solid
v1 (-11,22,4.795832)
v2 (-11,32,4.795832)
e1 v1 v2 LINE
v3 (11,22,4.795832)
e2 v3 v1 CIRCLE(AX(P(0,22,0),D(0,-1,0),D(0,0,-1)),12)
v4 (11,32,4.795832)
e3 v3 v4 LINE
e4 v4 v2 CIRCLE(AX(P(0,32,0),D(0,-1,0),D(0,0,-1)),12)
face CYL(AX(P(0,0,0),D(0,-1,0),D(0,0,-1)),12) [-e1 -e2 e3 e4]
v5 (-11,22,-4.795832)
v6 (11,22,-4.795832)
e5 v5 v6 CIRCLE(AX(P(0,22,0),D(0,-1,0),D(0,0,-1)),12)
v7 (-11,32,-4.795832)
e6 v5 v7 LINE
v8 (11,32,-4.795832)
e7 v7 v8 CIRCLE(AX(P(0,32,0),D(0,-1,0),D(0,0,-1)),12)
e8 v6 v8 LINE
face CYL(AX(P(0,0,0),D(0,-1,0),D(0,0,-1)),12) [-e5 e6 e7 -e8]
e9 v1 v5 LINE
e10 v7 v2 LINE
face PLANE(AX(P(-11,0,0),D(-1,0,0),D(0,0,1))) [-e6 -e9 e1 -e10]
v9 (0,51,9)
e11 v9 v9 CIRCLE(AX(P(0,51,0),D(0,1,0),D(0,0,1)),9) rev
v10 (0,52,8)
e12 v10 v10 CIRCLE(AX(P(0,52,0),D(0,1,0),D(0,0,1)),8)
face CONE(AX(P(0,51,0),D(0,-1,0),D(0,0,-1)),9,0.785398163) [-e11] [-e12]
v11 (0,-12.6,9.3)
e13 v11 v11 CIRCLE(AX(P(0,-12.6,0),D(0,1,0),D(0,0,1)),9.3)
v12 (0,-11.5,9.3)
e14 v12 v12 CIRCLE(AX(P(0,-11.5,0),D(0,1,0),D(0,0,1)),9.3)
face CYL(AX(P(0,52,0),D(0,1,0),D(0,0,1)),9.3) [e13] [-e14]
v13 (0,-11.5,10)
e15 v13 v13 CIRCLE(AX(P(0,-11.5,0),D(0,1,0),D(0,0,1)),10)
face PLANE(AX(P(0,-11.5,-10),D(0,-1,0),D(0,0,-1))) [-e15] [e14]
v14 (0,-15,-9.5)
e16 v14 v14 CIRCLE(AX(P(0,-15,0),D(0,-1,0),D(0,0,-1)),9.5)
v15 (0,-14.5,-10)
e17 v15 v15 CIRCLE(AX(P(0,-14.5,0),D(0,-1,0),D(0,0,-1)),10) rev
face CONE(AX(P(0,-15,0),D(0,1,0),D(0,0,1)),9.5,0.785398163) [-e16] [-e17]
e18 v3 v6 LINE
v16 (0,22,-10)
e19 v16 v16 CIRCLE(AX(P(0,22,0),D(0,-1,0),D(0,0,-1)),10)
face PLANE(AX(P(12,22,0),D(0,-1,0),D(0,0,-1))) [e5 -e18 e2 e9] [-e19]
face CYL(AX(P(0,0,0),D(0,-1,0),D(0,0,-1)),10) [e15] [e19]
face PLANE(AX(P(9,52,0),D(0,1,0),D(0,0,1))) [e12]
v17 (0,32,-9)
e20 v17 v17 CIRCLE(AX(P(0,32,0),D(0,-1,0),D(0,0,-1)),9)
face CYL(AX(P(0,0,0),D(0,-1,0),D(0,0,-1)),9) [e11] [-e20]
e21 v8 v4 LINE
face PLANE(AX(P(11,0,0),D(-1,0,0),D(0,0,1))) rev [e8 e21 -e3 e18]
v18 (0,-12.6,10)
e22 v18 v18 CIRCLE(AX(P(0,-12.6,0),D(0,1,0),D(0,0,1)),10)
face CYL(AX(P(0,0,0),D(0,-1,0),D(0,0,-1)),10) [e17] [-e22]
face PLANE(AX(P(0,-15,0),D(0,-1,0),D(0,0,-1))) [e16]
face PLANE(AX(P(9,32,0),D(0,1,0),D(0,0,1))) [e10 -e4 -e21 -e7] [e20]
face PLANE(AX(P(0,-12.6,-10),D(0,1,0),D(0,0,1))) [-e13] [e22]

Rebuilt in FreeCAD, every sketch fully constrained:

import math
import FreeCAD as App
import Part
import Sketcher


def edges_at(feature, points):
    """Names of the edges that pass closest to the given points."""
    edges = feature.Shape.Edges
    near = lambda p: min(range(len(edges)), key=lambda i: edges[i].distToShape(Part.Vertex(*p))[0])
    return sorted({f"Edge{near(p) + 1}" for p in points})

doc = App.newDocument("Part")
body = doc.addObject("PartDesign::Body", "Body")

sketch1 = doc.addObject("Sketcher::SketchObject", "Sketch")
body.addObject(sketch1)
sketch1.AttachmentSupport = (doc.XY_Plane, [""])
sketch1.MapMode = "FlatFace"
sketch1.addGeometry(Part.LineSegment(App.Vector(0, 0, 0), App.Vector(10, 0, 0)), False)
sketch1.addGeometry(Part.LineSegment(App.Vector(10, 0, 0), App.Vector(10, 22, 0)), False)
sketch1.addGeometry(Part.LineSegment(App.Vector(10, 22, 0), App.Vector(12, 22, 0)), False)
sketch1.addGeometry(Part.LineSegment(App.Vector(12, 22, 0), App.Vector(12, 32, 0)), False)
sketch1.addGeometry(Part.LineSegment(App.Vector(12, 32, 0), App.Vector(9, 32, 0)), False)
sketch1.addGeometry(Part.LineSegment(App.Vector(9, 32, 0), App.Vector(9, 52, 0)), False)
sketch1.addGeometry(Part.LineSegment(App.Vector(9, 52, 0), App.Vector(0, 52, 0)), False)
sketch1.addGeometry(Part.LineSegment(App.Vector(0, 52, 0), App.Vector(0, 0, 0)), False)
sketch1.addConstraint(Sketcher.Constraint("Coincident", 0, 2, 1, 1))
sketch1.addConstraint(Sketcher.Constraint("Coincident", 1, 2, 2, 1))
sketch1.addConstraint(Sketcher.Constraint("Coincident", 2, 2, 3, 1))
sketch1.addConstraint(Sketcher.Constraint("Coincident", 3, 2, 4, 1))
sketch1.addConstraint(Sketcher.Constraint("Coincident", 4, 2, 5, 1))
sketch1.addConstraint(Sketcher.Constraint("Coincident", 5, 2, 6, 1))
sketch1.addConstraint(Sketcher.Constraint("Coincident", 6, 2, 7, 1))
sketch1.addConstraint(Sketcher.Constraint("Coincident", 7, 2, 0, 1))
sketch1.addConstraint(Sketcher.Constraint("Horizontal", 0))
sketch1.addConstraint(Sketcher.Constraint("Vertical", 1))
sketch1.addConstraint(Sketcher.Constraint("Horizontal", 2))
sketch1.addConstraint(Sketcher.Constraint("Vertical", 3))
sketch1.addConstraint(Sketcher.Constraint("Horizontal", 4))
sketch1.addConstraint(Sketcher.Constraint("Vertical", 5))
sketch1.addConstraint(Sketcher.Constraint("Horizontal", 6))
sketch1.addConstraint(Sketcher.Constraint("Vertical", 7))
sketch1.addConstraint(Sketcher.Constraint("Coincident", 7, 2, -1, 1))
sketch1.addConstraint(Sketcher.Constraint("Equal", 0, 3))
sketch1.addConstraint(Sketcher.Constraint("DistanceX", 0, 1, 0, 2, 10.0))
sketch1.addConstraint(Sketcher.Constraint("DistanceX", 2, 1, 2, 2, 2.0))
sketch1.addConstraint(Sketcher.Constraint("DistanceX", 4, 2, 4, 1, 3.0))
sketch1.addConstraint(Sketcher.Constraint("DistanceY", 1, 1, 1, 2, 22.0))
sketch1.addConstraint(Sketcher.Constraint("DistanceY", 5, 1, 5, 2, 20.0))
revolution = doc.addObject("PartDesign::Revolution", "Revolution")
body.addObject(revolution)
revolution.Profile = sketch1
revolution.ReferenceAxis = (sketch1, ["V_Axis"])
revolution.Angle = 360
doc.recompute()

chamfer = doc.addObject("PartDesign::Chamfer", "Chamfer")
body.addObject(chamfer)
chamfer.Base = (revolution, edges_at(revolution, [(0, 52, 9)]))
chamfer.Size = 1

sketch2 = doc.addObject("Sketcher::SketchObject", "Sketch001")
body.addObject(sketch2)
sketch2.AttachmentSupport = (doc.XZ_Plane, [""])
sketch2.MapMode = "FlatFace"
sketch2.AttachmentOffset = App.Placement(App.Vector(0, 0, -32), App.Rotation())
sketch2.addGeometry(Part.LineSegment(App.Vector(-11, 4.795832, 0), App.Vector(-11, -4.795832, 0)), False)
sketch2.addGeometry(Part.ArcOfCircle(Part.Circle(App.Vector(0, 0, 0), App.Vector(0, 0, 1), 12), math.radians(156.443536), math.radians(203.556464)), False)
sketch2.addGeometry(Part.ArcOfCircle(Part.Circle(App.Vector(0, 0, 0), App.Vector(0, 0, 1), 12), math.radians(-23.556464), math.radians(0)), False)
sketch2.addGeometry(Part.LineSegment(App.Vector(11, -4.795832, 0), App.Vector(11, 4.795832, 0)), False)
sketch2.addGeometry(Part.ArcOfCircle(Part.Circle(App.Vector(0, 0, 0), App.Vector(0, 0, 1), 12), math.radians(0), math.radians(23.556464)), False)
sketch2.addConstraint(Sketcher.Constraint("Coincident", 0, 1, 1, 1))
sketch2.addConstraint(Sketcher.Constraint("Coincident", 1, 2, 0, 2))
sketch2.addConstraint(Sketcher.Constraint("Coincident", 2, 1, 3, 1))
sketch2.addConstraint(Sketcher.Constraint("Coincident", 3, 2, 4, 2))
sketch2.addConstraint(Sketcher.Constraint("Tangent", 4, 1, 2, 2))
sketch2.addConstraint(Sketcher.Constraint("Vertical", 0))
sketch2.addConstraint(Sketcher.Constraint("Vertical", 3))
sketch2.addConstraint(Sketcher.Constraint("Coincident", 1, 3, -1, 1))
sketch2.addConstraint(Sketcher.Constraint("Coincident", 2, 3, -1, 1))
sketch2.addConstraint(Sketcher.Constraint("Equal", 1, 2))
sketch2.addConstraint(Sketcher.Constraint("Equal", 2, 4))
sketch2.addConstraint(Sketcher.Constraint("PointOnObject", 4, 1, -1))
sketch2.addConstraint(Sketcher.Constraint("Horizontal", 1, 2, 2, 1))
sketch2.addConstraint(Sketcher.Constraint("Radius", 1, 12.0))
sketch2.addConstraint(Sketcher.Constraint("DistanceX", 0, 1, -1, 1, 11.0))
pocket1 = doc.addObject("PartDesign::Pocket", "Pocket")
body.addObject(pocket1)
pocket1.Profile = sketch2
pocket1.Type = "ThroughAll"
pocket1.Reversed = True

sketch3 = doc.addObject("Sketcher::SketchObject", "Sketch002")
body.addObject(sketch3)
sketch3.AttachmentSupport = (doc.XZ_Plane, [""])
sketch3.MapMode = "FlatFace"
sketch3.addGeometry(Part.Circle(App.Vector(0, 0, 0), App.Vector(0, 0, 1), 10), False)
sketch3.addConstraint(Sketcher.Constraint("Coincident", 0, 3, -1, 1))
sketch3.addConstraint(Sketcher.Constraint("Diameter", 0, 20.0))
pad1 = doc.addObject("PartDesign::Pad", "Pad")
body.addObject(pad1)
pad1.Profile = sketch3
pad1.Length = 15
doc.recompute()

chamfer2 = doc.addObject("PartDesign::Chamfer", "Chamfer001")
body.addObject(chamfer2)
chamfer2.Base = (pad1, edges_at(pad1, [(0, -15, 10)]))
chamfer2.Size = 0.5

sketch4 = doc.addObject("Sketcher::SketchObject", "Sketch003")
body.addObject(sketch4)
sketch4.AttachmentSupport = (doc.YZ_Plane, [""])
sketch4.MapMode = "FlatFace"
sketch4.addGeometry(Part.LineSegment(App.Vector(-11.5, -9.3, 0), App.Vector(-12.6, -9.3, 0)), False)
sketch4.addGeometry(Part.LineSegment(App.Vector(-12.6, -9.3, 0), App.Vector(-12.6, -10, 0)), False)
sketch4.addGeometry(Part.LineSegment(App.Vector(-12.6, -10, 0), App.Vector(-11.5, -10, 0)), False)
sketch4.addGeometry(Part.LineSegment(App.Vector(-11.5, -10, 0), App.Vector(-11.5, -9.3, 0)), False)
sketch4.addConstraint(Sketcher.Constraint("Coincident", 0, 2, 1, 1))
sketch4.addConstraint(Sketcher.Constraint("Coincident", 1, 2, 2, 1))
sketch4.addConstraint(Sketcher.Constraint("Coincident", 2, 2, 3, 1))
sketch4.addConstraint(Sketcher.Constraint("Coincident", 3, 2, 0, 1))
sketch4.addConstraint(Sketcher.Constraint("Horizontal", 0))
sketch4.addConstraint(Sketcher.Constraint("Vertical", 1))
sketch4.addConstraint(Sketcher.Constraint("Horizontal", 2))
sketch4.addConstraint(Sketcher.Constraint("Vertical", 3))
sketch4.addConstraint(Sketcher.Constraint("DistanceX", 0, 2, 0, 1, 1.1))
sketch4.addConstraint(Sketcher.Constraint("DistanceY", 1, 2, 1, 1, 0.7))
sketch4.addConstraint(Sketcher.Constraint("DistanceY", 1, 2, -1, 1, 10.0))
sketch4.addConstraint(Sketcher.Constraint("DistanceX", 0, 2, -1, 1, 12.6))
groove = doc.addObject("PartDesign::Groove", "Groove")
body.addObject(groove)
groove.Profile = sketch4
groove.ReferenceAxis = (sketch4, ["H_Axis"])
groove.Angle = 360

doc.recompute()
